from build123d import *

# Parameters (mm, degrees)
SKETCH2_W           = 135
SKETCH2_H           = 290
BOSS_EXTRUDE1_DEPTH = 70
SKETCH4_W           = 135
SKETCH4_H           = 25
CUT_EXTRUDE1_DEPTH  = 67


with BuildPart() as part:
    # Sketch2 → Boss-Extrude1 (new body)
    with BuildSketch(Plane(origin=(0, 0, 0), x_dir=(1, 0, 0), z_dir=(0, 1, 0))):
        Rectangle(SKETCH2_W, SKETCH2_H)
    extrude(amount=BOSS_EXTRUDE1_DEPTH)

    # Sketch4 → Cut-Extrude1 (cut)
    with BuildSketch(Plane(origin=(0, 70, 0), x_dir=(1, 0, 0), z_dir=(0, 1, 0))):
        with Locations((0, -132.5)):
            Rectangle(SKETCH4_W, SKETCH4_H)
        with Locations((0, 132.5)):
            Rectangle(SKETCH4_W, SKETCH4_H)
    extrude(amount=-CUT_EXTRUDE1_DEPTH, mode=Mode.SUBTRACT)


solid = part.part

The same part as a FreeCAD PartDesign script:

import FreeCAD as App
import Part
import Sketcher
from FreeCAD import Vector


def add_polygon(sketch, points):
    """Adds a closed chain of lines whose ends are joined by coincident constraints."""
    first, n = sketch.GeometryCount, len(points)
    for a, b in zip(points, points[1:] + points[:1]):
        sketch.addGeometry(Part.LineSegment(App.Vector(*a, 0), App.Vector(*b, 0)), False)
    for i in range(n):
        sketch.addConstraint(Sketcher.Constraint("Coincident", first + i, 2, first + (i + 1) % n, 1))

doc = App.newDocument("Part")
body = doc.addObject("PartDesign::Body", "Body")

# Sketch on XZ plane
sketch1 = doc.addObject("Sketcher::SketchObject", "Sketch")
body.addObject(sketch1)
sketch1.AttachmentSupport = (doc.XZ_Plane, [""])
sketch1.MapMode = "FlatFace"
add_polygon(sketch1, [(-68, -145), (-68, 145), (68, 145), (68, -145)])  # lines 0-3
sketch1.addConstraint(Sketcher.Constraint("Vertical", 0))
sketch1.addConstraint(Sketcher.Constraint("Horizontal", 1))
sketch1.addConstraint(Sketcher.Constraint("Vertical", 2))
sketch1.addConstraint(Sketcher.Constraint("Horizontal", 3))
sketch1.addConstraint(Sketcher.Constraint("Symmetric", 0, 2, 2, 2, -1, 1))
sketch1.addConstraint(Sketcher.Constraint("DistanceX", 1, 1, 1, 2, 135.0))
sketch1.addConstraint(Sketcher.Constraint("DistanceY", 0, 1, 0, 2, 290.0))
pad1 = doc.addObject("PartDesign::Pad", "Pad")
body.addObject(pad1)
pad1.Profile = sketch1
pad1.Length = 70
pad1.Reversed = True

# Sketch on XZ plane
sketch2 = doc.addObject("Sketcher::SketchObject", "Sketch001")
body.addObject(sketch2)
sketch2.AttachmentSupport = (doc.XZ_Plane, [""])
sketch2.MapMode = "FlatFace"
sketch2.AttachmentOffset = App.Placement(Vector(0, 0, -70), App.Rotation())
add_polygon(sketch2, [(-68, 120), (-68, 145), (68, 145), (68, 120)])  # lines 0-3
add_polygon(sketch2, [(-68, -145), (-68, -120), (68, -120), (68, -145)])  # lines 4-7
sketch2.addConstraint(Sketcher.Constraint("Vertical", 0))
sketch2.addConstraint(Sketcher.Constraint("Horizontal", 1))
sketch2.addConstraint(Sketcher.Constraint("Vertical", 2))
sketch2.addConstraint(Sketcher.Constraint("Horizontal", 3))
sketch2.addConstraint(Sketcher.Constraint("Vertical", 4))
sketch2.addConstraint(Sketcher.Constraint("Horizontal", 5))
sketch2.addConstraint(Sketcher.Constraint("Vertical", 6))
sketch2.addConstraint(Sketcher.Constraint("Horizontal", 7))
sketch2.addConstraint(Sketcher.Constraint("Symmetric", 2, 2, 4, 2, -1, 1))
sketch2.addConstraint(Sketcher.Constraint("Symmetric", 0, 2, 6, 2, -1, 1))
sketch2.addConstraint(Sketcher.Constraint("Vertical", 3, 2, 4, 2))
sketch2.addConstraint(Sketcher.Constraint("DistanceX", 1, 1, 1, 2, 135.0))
sketch2.addConstraint(Sketcher.Constraint("DistanceY", 0, 1, 0, 2, 25.0))
sketch2.addConstraint(Sketcher.Constraint("DistanceY", -1, 1, 0, 2, 145.0))
pocket1 = doc.addObject("PartDesign::Pocket", "Pocket")
body.addObject(pocket1)
pocket1.Profile = sketch2
pocket1.Length = 67
pocket1.Reversed = True

doc.recompute()
